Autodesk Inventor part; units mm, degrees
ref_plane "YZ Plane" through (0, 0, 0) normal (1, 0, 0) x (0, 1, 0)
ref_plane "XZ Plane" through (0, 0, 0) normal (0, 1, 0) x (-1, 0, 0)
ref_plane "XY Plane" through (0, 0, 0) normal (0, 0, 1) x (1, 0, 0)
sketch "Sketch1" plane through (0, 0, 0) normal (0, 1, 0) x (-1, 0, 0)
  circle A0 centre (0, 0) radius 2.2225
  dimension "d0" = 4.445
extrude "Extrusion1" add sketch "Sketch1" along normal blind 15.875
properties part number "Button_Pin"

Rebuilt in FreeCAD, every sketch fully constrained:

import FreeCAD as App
import Part
import Sketcher

V = App.Vector
Q = App.Units.Quantity

doc = App.newDocument("Part")
body = doc.addObject("PartDesign::Body", "Body")

# Sketch on XZ plane
sketch1 = body.newObject("Sketcher::SketchObject", "Sketch")
sketch1.AttachmentSupport = (doc.getObject("XZ_Plane"), [""])
sketch1.MapMode = "FlatFace"
sketch1.addGeometry(Part.Circle(V(0, 0, 0), V(0, 0, 1), 2.2), False)
sketch1.addConstraint(Sketcher.Constraint("Coincident", 0, 3, -1, 1))
sketch1.addConstraint(Sketcher.Constraint("Diameter", 0, Q("0.175 in")))
pad1 = body.newObject("PartDesign::Pad", "Pad")
pad1.Profile = sketch1
pad1.Length = Q("0.625 in")
pad1.Reversed = True

doc.recompute()
